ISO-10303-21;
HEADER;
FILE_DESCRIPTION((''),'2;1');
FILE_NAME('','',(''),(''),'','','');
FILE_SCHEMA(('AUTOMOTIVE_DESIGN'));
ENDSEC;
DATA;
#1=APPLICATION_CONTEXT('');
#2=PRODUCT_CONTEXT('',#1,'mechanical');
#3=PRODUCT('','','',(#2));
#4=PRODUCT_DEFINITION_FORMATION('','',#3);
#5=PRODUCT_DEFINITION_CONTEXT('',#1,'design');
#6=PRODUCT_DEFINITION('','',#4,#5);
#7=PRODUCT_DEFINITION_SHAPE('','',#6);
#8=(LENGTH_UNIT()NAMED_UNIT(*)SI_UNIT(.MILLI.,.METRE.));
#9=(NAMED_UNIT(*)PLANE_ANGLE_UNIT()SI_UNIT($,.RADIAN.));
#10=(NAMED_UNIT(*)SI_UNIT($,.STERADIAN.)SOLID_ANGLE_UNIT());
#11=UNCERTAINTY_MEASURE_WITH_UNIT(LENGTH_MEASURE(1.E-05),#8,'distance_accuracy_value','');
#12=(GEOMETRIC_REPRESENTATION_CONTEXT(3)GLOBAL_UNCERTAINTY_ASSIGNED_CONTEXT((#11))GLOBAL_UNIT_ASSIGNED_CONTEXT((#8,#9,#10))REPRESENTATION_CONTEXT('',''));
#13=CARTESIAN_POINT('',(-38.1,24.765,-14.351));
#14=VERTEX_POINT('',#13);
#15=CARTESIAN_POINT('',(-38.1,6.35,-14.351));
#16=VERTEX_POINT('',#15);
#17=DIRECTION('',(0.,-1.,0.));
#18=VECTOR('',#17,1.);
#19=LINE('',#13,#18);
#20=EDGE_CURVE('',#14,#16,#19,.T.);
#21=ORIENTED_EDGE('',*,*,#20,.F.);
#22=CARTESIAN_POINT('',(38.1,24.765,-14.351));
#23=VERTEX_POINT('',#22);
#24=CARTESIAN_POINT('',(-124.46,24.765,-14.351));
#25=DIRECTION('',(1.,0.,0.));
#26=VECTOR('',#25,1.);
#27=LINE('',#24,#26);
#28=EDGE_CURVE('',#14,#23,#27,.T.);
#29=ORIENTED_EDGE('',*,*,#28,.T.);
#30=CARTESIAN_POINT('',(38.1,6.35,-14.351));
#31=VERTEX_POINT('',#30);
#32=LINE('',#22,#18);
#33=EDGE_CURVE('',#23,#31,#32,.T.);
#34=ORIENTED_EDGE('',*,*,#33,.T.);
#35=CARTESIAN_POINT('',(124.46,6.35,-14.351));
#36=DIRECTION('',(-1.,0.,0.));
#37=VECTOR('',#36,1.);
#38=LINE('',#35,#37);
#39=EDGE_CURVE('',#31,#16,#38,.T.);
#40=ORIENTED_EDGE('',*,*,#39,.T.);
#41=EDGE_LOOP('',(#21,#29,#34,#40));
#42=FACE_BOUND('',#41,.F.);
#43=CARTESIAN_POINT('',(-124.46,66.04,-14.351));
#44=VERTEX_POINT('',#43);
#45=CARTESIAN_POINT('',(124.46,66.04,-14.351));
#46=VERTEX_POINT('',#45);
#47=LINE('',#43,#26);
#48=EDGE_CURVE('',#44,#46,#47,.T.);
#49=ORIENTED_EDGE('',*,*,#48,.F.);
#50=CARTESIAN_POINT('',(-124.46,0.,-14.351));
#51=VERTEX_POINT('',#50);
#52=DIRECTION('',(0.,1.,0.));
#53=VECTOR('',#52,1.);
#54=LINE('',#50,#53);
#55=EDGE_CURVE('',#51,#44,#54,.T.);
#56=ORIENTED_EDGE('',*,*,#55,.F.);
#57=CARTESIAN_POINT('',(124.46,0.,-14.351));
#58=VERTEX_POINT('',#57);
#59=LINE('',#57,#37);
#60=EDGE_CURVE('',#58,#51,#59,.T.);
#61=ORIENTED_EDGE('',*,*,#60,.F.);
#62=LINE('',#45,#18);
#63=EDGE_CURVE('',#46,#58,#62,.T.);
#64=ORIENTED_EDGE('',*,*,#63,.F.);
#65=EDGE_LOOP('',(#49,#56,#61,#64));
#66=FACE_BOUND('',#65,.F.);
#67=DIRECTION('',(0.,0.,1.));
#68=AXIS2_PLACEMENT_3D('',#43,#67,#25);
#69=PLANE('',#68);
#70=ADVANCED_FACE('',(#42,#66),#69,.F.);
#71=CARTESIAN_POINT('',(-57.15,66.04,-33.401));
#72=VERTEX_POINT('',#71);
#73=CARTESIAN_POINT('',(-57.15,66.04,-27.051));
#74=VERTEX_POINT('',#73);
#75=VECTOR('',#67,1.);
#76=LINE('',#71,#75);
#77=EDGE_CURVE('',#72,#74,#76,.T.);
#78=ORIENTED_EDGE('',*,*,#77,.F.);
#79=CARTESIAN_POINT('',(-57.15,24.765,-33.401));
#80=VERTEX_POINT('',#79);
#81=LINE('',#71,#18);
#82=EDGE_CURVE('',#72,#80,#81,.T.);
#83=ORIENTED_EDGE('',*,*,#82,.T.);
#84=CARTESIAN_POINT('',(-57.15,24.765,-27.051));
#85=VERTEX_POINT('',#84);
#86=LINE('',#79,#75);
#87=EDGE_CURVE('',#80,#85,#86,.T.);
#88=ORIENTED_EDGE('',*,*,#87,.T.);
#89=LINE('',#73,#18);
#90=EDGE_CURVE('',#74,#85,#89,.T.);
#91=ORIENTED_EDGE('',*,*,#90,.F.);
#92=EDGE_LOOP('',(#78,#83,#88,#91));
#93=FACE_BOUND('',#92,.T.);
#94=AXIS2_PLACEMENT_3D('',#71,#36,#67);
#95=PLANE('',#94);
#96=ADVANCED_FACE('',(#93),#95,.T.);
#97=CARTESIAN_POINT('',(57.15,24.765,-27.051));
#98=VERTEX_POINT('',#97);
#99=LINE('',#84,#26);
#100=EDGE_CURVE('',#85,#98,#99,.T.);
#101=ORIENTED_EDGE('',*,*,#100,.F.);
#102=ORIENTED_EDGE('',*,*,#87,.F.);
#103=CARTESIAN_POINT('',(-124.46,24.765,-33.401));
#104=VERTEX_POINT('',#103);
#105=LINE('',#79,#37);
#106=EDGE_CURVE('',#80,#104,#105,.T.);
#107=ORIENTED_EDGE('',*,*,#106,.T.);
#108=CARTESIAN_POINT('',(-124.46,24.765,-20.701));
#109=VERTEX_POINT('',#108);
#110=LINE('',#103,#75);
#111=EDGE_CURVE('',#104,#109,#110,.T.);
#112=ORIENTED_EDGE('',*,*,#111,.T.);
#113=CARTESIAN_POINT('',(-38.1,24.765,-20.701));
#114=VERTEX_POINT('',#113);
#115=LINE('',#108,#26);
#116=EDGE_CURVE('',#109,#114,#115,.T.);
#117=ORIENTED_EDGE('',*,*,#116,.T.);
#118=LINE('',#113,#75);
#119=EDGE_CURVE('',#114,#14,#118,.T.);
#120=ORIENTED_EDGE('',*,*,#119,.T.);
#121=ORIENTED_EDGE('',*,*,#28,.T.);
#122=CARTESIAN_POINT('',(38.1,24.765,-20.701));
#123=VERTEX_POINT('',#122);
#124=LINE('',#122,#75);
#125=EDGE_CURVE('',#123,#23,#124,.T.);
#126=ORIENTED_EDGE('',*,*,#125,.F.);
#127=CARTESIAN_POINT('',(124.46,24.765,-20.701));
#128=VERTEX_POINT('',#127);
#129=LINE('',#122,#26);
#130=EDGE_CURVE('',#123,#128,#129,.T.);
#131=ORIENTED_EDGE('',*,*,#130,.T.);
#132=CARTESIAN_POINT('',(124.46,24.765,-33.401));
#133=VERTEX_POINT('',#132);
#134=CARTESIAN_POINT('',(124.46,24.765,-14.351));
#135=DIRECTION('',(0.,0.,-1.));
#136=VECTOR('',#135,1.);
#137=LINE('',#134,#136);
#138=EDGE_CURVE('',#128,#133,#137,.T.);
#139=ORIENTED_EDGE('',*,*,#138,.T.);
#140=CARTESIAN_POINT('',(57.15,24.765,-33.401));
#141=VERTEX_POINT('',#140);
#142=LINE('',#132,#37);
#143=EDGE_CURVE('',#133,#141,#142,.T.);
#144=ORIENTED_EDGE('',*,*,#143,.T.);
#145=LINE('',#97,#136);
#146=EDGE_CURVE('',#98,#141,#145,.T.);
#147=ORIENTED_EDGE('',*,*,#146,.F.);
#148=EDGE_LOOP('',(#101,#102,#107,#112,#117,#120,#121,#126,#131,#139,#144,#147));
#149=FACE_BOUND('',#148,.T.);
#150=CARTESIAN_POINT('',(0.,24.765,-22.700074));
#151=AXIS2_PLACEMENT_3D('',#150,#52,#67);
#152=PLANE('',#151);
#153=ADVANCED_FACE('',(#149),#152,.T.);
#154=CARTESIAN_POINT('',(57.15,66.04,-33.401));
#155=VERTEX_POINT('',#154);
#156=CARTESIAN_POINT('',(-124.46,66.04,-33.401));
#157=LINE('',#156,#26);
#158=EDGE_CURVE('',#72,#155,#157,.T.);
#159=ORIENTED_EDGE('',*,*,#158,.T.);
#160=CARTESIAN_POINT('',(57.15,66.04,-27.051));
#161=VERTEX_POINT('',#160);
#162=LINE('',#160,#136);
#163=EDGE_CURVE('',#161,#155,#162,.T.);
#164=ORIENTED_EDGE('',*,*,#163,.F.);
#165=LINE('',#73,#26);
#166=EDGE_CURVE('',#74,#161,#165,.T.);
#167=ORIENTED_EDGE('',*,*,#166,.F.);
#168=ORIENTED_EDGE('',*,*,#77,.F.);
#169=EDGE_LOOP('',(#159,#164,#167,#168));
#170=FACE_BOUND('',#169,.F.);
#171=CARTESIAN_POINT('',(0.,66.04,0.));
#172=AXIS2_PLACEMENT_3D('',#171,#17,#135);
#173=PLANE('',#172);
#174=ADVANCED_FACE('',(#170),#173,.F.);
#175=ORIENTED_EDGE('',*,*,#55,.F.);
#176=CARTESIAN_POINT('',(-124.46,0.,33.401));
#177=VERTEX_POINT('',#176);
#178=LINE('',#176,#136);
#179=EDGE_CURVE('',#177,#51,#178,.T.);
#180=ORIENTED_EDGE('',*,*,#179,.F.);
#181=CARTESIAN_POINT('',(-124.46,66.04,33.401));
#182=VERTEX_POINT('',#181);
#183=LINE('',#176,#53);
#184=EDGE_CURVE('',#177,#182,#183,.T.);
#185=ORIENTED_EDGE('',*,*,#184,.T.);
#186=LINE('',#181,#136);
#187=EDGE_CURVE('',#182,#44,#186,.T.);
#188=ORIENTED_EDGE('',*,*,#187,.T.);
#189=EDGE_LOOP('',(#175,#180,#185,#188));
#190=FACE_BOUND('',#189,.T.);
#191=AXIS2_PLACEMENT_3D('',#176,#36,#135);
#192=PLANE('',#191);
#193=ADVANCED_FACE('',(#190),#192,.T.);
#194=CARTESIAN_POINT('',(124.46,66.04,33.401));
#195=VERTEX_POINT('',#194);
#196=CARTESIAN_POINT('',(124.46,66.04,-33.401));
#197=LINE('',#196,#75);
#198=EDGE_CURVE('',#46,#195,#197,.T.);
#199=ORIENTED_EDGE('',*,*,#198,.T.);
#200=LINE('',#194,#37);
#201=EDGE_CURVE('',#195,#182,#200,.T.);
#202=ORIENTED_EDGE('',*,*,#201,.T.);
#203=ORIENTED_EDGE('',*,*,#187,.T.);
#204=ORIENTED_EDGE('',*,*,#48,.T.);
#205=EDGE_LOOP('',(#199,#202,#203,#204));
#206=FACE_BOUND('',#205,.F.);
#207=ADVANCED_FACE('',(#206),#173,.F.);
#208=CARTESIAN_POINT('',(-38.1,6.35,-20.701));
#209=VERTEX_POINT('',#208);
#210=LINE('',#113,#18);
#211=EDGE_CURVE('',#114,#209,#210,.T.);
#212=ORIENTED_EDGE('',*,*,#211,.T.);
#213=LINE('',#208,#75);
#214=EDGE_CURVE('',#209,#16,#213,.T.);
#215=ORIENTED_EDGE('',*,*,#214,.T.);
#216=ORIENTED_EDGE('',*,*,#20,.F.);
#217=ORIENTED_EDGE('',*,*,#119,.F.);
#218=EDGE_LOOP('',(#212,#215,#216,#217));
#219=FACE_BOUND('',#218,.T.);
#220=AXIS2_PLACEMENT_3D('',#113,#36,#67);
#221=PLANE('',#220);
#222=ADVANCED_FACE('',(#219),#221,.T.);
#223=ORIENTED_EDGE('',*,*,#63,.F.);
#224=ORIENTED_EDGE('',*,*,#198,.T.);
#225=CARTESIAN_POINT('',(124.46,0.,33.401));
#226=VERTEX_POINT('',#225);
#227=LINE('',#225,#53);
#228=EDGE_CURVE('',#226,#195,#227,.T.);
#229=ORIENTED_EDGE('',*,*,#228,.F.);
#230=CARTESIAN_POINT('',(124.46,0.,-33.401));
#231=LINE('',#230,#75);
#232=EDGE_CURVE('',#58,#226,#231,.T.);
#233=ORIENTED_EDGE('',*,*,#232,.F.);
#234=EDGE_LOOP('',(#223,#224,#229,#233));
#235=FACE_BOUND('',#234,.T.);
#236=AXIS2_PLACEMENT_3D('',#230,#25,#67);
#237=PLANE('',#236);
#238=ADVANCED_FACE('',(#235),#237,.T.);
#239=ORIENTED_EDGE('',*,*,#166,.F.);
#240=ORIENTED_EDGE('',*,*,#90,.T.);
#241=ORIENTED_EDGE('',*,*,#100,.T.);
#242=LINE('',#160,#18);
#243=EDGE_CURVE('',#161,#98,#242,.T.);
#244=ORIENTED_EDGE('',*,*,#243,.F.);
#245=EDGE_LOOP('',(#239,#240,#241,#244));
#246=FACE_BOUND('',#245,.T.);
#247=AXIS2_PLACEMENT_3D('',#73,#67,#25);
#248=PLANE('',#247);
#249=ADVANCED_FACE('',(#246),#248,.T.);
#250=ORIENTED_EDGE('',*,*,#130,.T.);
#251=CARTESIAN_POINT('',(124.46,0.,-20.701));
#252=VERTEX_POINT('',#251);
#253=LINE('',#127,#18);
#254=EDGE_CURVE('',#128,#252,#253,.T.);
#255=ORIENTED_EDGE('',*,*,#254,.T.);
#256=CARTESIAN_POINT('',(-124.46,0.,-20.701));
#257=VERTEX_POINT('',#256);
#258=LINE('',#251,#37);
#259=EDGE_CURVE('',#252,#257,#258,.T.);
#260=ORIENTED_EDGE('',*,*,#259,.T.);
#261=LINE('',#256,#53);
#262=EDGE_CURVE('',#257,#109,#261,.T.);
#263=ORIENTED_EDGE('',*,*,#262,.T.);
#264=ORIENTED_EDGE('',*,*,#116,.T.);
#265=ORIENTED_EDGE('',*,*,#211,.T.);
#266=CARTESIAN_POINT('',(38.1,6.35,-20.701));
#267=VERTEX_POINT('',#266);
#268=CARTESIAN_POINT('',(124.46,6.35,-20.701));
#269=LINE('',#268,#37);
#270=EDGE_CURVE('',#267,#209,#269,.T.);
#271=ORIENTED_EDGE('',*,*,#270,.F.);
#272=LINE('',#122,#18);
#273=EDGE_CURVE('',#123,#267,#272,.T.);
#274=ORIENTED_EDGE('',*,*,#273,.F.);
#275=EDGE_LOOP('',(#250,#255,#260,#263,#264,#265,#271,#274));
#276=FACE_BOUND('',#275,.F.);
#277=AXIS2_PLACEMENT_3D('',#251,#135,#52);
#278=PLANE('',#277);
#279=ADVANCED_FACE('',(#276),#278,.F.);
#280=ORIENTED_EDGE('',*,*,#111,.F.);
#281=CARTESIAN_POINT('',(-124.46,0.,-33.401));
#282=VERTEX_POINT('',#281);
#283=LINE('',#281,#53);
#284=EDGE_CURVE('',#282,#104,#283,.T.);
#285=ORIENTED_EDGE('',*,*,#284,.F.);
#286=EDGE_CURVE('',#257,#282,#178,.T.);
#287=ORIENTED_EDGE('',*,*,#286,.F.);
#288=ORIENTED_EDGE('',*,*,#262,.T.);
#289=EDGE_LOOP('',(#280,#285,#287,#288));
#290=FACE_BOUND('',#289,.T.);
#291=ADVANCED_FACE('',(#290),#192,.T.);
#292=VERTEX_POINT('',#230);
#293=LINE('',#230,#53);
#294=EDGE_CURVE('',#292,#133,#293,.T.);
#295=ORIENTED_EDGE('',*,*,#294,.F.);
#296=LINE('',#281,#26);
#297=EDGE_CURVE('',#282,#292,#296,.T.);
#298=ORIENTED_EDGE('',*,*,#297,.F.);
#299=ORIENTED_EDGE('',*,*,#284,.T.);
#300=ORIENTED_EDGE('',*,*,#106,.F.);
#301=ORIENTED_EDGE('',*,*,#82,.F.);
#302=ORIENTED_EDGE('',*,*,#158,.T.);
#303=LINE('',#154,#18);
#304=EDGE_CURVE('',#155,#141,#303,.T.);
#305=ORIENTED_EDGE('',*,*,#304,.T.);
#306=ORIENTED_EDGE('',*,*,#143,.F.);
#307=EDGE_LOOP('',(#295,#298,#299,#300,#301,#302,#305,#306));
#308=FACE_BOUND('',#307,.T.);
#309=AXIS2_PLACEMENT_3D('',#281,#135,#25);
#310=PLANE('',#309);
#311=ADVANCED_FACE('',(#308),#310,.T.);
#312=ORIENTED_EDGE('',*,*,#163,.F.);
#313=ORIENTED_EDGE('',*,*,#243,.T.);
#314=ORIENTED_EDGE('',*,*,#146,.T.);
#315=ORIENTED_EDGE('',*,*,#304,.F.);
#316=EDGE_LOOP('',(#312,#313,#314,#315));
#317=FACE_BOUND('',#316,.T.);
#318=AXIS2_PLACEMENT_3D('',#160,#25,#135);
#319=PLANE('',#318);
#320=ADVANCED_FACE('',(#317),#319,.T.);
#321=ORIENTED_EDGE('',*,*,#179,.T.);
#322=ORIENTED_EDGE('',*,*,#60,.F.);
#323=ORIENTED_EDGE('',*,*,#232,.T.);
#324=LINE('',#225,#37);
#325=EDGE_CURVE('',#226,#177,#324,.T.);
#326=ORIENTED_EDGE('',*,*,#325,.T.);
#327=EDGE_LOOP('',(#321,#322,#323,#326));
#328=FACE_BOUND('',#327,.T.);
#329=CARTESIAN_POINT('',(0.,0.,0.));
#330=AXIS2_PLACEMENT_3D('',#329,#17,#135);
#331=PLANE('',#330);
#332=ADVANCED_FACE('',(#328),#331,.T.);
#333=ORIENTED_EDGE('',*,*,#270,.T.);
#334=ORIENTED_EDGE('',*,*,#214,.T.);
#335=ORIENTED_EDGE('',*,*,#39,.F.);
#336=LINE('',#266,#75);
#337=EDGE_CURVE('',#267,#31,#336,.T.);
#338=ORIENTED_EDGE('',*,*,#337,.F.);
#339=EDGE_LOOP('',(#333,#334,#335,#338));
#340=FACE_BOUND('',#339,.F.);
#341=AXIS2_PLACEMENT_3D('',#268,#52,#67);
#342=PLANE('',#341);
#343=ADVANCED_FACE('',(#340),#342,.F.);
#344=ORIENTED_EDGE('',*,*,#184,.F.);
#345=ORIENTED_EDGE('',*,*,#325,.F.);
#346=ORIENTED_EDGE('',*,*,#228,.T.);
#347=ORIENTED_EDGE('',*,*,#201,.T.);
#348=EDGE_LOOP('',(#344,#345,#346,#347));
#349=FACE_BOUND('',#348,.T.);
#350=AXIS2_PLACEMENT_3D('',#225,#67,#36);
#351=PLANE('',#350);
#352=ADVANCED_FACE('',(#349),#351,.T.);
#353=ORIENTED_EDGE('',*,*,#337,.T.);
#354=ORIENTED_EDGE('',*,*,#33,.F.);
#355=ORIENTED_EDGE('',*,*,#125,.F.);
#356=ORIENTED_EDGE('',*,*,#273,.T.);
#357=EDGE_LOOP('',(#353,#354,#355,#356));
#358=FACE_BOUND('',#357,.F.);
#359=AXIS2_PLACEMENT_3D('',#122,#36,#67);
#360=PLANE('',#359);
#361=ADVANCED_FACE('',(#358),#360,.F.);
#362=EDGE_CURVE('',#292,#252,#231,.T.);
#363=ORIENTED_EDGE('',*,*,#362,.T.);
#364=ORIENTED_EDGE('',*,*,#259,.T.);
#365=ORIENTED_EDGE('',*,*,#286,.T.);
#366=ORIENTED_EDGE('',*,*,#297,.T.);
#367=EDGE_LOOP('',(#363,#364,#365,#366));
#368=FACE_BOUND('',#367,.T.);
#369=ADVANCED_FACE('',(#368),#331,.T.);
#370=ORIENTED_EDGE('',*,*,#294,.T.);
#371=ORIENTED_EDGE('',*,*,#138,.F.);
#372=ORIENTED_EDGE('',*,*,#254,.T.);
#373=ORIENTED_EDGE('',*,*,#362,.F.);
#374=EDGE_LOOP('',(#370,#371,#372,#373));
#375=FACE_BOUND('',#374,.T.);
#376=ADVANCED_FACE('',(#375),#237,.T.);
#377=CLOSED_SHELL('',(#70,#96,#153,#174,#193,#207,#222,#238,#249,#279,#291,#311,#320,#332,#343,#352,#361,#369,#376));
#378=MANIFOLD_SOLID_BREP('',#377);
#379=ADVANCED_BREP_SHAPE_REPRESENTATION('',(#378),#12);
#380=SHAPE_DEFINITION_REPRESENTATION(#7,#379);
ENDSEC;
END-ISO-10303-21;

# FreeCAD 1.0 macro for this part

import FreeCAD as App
import Part
import Sketcher

V = App.Vector
Q = App.Units.Quantity

doc = App.newDocument("Part")
body = doc.addObject("PartDesign::Body", "Body")

sketch1 = body.newObject("Sketcher::SketchObject", "Sketch")
sketch1.AttachmentSupport = (doc.getObject("XZ_Plane"), [""])
sketch1.MapMode = "FlatFace"
sketch1.addGeometry([
    Part.LineSegment(V(-124, 33, 0), V(-124, -33, 0)),
    Part.LineSegment(V(-124, -33, 0), V(124, -33, 0)),
    Part.LineSegment(V(124, -33, 0), V(124, 33, 0)),
    Part.LineSegment(V(124, 33, 0), V(-124, 33, 0)),
], False)
sketch1.addConstraint([
    Sketcher.Constraint("Coincident", 0, 2, 1, 1),
    Sketcher.Constraint("Coincident", 1, 2, 2, 1),
    Sketcher.Constraint("Coincident", 2, 2, 3, 1),
    Sketcher.Constraint("Coincident", 3, 2, 0, 1),
    Sketcher.Constraint("Vertical", 0),
    Sketcher.Constraint("Horizontal", 1),
    Sketcher.Constraint("Vertical", 2),
    Sketcher.Constraint("Horizontal", 3),
    Sketcher.Constraint("Symmetric", 0, 2, 2, 2, -1, 1),
    Sketcher.Constraint("DistanceX", 0, 2, -1, 1, Q("4.9 in")),
    Sketcher.Constraint("DistanceY", 0, 2, 0, 1, Q("2.63 in")),
])
pad1 = body.newObject("PartDesign::Pad", "Pad")
pad1.Profile = sketch1
pad1.Length = Q("2.6 in")
pad1.Reversed = True

sketch2 = body.newObject("Sketcher::SketchObject", "Sketch001")
sketch2.AttachmentSupport = (doc.getObject("XZ_Plane"), [""])
sketch2.MapMode = "FlatFace"
sketch2.AttachmentOffset = App.Placement(V(0, 0, -2.6 * 25.4), App.Rotation())
sketch2.addGeometry([
    Part.LineSegment(V(-57, -27, 0), V(-57, -33, 0)),
    Part.LineSegment(V(-57, -33, 0), V(-124, -33, 0)),
    Part.LineSegment(V(-124, -33, 0), V(-124, -14, 0)),
    Part.LineSegment(V(-124, -14, 0), V(124, -14, 0)),
    Part.LineSegment(V(124, -14, 0), V(124, -33, 0)),
    Part.LineSegment(V(124, -33, 0), V(57, -33, 0)),
    Part.LineSegment(V(57, -33, 0), V(57, -27, 0)),
    Part.LineSegment(V(57, -27, 0), V(-57, -27, 0)),
], False)
sketch2.addConstraint([
    Sketcher.Constraint("Coincident", 0, 2, 1, 1),
    Sketcher.Constraint("Coincident", 1, 2, 2, 1),
    Sketcher.Constraint("Coincident", 2, 2, 3, 1),
    Sketcher.Constraint("Coincident", 3, 2, 4, 1),
    Sketcher.Constraint("Coincident", 4, 2, 5, 1),
    Sketcher.Constraint("Coincident", 5, 2, 6, 1),
    Sketcher.Constraint("Coincident", 6, 2, 7, 1),
    Sketcher.Constraint("Coincident", 7, 2, 0, 1),
    Sketcher.Constraint("Vertical", 0),
    Sketcher.Constraint("Horizontal", 1),
    Sketcher.Constraint("Vertical", 2),
    Sketcher.Constraint("Horizontal", 3),
    Sketcher.Constraint("Vertical", 4),
    Sketcher.Constraint("Horizontal", 5),
    Sketcher.Constraint("Vertical", 6),
    Sketcher.Constraint("Horizontal", 7),
    Sketcher.Constraint("Symmetric", 1, 2, 4, 2, -2),
    Sketcher.Constraint("Equal", 1, 5),
    Sketcher.Constraint("DistanceX", 1, 2, -1, 1, Q("4.9 in")),
    Sketcher.Constraint("DistanceX", 7, 2, 7, 1, Q("4.5 in")),
    Sketcher.Constraint("DistanceY", 0, 2, 0, 1, Q("0.25 in")),
    Sketcher.Constraint("DistanceY", 2, 1, 2, 2, Q("0.75 in")),
    Sketcher.Constraint("DistanceY", 0, 2, -1, 1, Q("1.315 in")),
])
pocket1 = body.newObject("PartDesign::Pocket", "Pocket")
pocket1.Profile = sketch2
pocket1.Length = Q("1.625 in")
pocket1.Reversed = True

sketch3 = body.newObject("Sketcher::SketchObject", "Sketch002")
sketch3.AttachmentSupport = (doc.getObject("YZ_Plane"), [""])
sketch3.MapMode = "FlatFace"
sketch3.AttachmentOffset = App.Placement(V(0, 0, 4.9 * 25.4), App.Rotation())
sketch3.addGeometry([
    Part.LineSegment(V(6, -14, 0), V(0, -14, 0)),
    Part.LineSegment(V(0, -14, 0), V(0, -21, 0)),
    Part.LineSegment(V(0, -21, 0), V(6, -21, 0)),
    Part.LineSegment(V(6, -21, 0), V(6, -14, 0)),
], False)
sketch3.addConstraint([
    Sketcher.Constraint("Coincident", 0, 2, 1, 1),
    Sketcher.Constraint("Coincident", 1, 2, 2, 1),
    Sketcher.Constraint("Coincident", 2, 2, 3, 1),
    Sketcher.Constraint("Coincident", 3, 2, 0, 1),
    Sketcher.Constraint("Horizontal", 0),
    Sketcher.Constraint("Vertical", 1),
    Sketcher.Constraint("Horizontal", 2),
    Sketcher.Constraint("Vertical", 3),
    Sketcher.Constraint("PointOnObject", 0, 2, -2),
    Sketcher.Constraint("Equal", 2, 1),
    Sketcher.Constraint("DistanceX", 0, 2, 0, 1, Q("0.25 in")),
    Sketcher.Constraint("DistanceY", 0, 2, -1, 1, Q("0.565 in")),
])
pocket2 = body.newObject("PartDesign::Pocket", "Pocket001")
pocket2.Profile = sketch3
pocket2.Type = "ThroughAll"

sketch4 = body.newObject("Sketcher::SketchObject", "Sketch003")
sketch4.AttachmentSupport = (doc.getObject("XZ_Plane"), [""])
sketch4.MapMode = "FlatFace"
sketch4.AttachmentOffset = App.Placement(V(0, 0, -0.975 * 25.4), App.Rotation())
sketch4.addGeometry([
    Part.LineSegment(V(124, -21, 0), V(38, -21, 0)),
    Part.LineSegment(V(38, -21, 0), V(38, -14, 0)),
    Part.LineSegment(V(38, -14, 0), V(124, -14, 0)),
    Part.LineSegment(V(124, -14, 0), V(124, -21, 0)),
    Part.LineSegment(V(-38, -21, 0), V(-124, -21, 0)),
    Part.LineSegment(V(-124, -21, 0), V(-124, -14, 0)),
    Part.LineSegment(V(-124, -14, 0), V(-38, -14, 0)),
    Part.LineSegment(V(-38, -14, 0), V(-38, -21, 0)),
], False)
sketch4.addConstraint([
    Sketcher.Constraint("Coincident", 0, 2, 1, 1),
    Sketcher.Constraint("Coincident", 1, 2, 2, 1),
    Sketcher.Constraint("Coincident", 2, 2, 3, 1),
    Sketcher.Constraint("Coincident", 3, 2, 0, 1),
    Sketcher.Constraint("Coincident", 4, 2, 5, 1),
    Sketcher.Constraint("Coincident", 5, 2, 6, 1),
    Sketcher.Constraint("Coincident", 6, 2, 7, 1),
    Sketcher.Constraint("Coincident", 7, 2, 4, 1),
    Sketcher.Constraint("Horizontal", 0),
    Sketcher.Constraint("Vertical", 1),
    Sketcher.Constraint("Horizontal", 2),
    Sketcher.Constraint("Vertical", 3),
    Sketcher.Constraint("Horizontal", 4),
    Sketcher.Constraint("Vertical", 5),
    Sketcher.Constraint("Horizontal", 6),
    Sketcher.Constraint("Vertical", 7),
    Sketcher.Constraint("Symmetric", 3, 2, 4, 2, -2),
    Sketcher.Constraint("Symmetric", 1, 2, 6, 2, -2),
    Sketcher.Constraint("DistanceX", 0, 2, 0, 1, Q("3.4 in")),
    Sketcher.Constraint("DistanceX", 6, 2, 1, 2, Q("3 in")),
    Sketcher.Constraint("DistanceY", 1, 1, 1, 2, Q("0.25 in")),
    Sketcher.Constraint("DistanceY", 0, 2, -1, 1, Q("0.815 in")),
])
pocket3 = body.newObject("PartDesign::Pocket", "Pocket002")
pocket3.Profile = sketch4
pocket3.Type = "ThroughAll"
pocket3.Reversed = True

doc.recompute()
